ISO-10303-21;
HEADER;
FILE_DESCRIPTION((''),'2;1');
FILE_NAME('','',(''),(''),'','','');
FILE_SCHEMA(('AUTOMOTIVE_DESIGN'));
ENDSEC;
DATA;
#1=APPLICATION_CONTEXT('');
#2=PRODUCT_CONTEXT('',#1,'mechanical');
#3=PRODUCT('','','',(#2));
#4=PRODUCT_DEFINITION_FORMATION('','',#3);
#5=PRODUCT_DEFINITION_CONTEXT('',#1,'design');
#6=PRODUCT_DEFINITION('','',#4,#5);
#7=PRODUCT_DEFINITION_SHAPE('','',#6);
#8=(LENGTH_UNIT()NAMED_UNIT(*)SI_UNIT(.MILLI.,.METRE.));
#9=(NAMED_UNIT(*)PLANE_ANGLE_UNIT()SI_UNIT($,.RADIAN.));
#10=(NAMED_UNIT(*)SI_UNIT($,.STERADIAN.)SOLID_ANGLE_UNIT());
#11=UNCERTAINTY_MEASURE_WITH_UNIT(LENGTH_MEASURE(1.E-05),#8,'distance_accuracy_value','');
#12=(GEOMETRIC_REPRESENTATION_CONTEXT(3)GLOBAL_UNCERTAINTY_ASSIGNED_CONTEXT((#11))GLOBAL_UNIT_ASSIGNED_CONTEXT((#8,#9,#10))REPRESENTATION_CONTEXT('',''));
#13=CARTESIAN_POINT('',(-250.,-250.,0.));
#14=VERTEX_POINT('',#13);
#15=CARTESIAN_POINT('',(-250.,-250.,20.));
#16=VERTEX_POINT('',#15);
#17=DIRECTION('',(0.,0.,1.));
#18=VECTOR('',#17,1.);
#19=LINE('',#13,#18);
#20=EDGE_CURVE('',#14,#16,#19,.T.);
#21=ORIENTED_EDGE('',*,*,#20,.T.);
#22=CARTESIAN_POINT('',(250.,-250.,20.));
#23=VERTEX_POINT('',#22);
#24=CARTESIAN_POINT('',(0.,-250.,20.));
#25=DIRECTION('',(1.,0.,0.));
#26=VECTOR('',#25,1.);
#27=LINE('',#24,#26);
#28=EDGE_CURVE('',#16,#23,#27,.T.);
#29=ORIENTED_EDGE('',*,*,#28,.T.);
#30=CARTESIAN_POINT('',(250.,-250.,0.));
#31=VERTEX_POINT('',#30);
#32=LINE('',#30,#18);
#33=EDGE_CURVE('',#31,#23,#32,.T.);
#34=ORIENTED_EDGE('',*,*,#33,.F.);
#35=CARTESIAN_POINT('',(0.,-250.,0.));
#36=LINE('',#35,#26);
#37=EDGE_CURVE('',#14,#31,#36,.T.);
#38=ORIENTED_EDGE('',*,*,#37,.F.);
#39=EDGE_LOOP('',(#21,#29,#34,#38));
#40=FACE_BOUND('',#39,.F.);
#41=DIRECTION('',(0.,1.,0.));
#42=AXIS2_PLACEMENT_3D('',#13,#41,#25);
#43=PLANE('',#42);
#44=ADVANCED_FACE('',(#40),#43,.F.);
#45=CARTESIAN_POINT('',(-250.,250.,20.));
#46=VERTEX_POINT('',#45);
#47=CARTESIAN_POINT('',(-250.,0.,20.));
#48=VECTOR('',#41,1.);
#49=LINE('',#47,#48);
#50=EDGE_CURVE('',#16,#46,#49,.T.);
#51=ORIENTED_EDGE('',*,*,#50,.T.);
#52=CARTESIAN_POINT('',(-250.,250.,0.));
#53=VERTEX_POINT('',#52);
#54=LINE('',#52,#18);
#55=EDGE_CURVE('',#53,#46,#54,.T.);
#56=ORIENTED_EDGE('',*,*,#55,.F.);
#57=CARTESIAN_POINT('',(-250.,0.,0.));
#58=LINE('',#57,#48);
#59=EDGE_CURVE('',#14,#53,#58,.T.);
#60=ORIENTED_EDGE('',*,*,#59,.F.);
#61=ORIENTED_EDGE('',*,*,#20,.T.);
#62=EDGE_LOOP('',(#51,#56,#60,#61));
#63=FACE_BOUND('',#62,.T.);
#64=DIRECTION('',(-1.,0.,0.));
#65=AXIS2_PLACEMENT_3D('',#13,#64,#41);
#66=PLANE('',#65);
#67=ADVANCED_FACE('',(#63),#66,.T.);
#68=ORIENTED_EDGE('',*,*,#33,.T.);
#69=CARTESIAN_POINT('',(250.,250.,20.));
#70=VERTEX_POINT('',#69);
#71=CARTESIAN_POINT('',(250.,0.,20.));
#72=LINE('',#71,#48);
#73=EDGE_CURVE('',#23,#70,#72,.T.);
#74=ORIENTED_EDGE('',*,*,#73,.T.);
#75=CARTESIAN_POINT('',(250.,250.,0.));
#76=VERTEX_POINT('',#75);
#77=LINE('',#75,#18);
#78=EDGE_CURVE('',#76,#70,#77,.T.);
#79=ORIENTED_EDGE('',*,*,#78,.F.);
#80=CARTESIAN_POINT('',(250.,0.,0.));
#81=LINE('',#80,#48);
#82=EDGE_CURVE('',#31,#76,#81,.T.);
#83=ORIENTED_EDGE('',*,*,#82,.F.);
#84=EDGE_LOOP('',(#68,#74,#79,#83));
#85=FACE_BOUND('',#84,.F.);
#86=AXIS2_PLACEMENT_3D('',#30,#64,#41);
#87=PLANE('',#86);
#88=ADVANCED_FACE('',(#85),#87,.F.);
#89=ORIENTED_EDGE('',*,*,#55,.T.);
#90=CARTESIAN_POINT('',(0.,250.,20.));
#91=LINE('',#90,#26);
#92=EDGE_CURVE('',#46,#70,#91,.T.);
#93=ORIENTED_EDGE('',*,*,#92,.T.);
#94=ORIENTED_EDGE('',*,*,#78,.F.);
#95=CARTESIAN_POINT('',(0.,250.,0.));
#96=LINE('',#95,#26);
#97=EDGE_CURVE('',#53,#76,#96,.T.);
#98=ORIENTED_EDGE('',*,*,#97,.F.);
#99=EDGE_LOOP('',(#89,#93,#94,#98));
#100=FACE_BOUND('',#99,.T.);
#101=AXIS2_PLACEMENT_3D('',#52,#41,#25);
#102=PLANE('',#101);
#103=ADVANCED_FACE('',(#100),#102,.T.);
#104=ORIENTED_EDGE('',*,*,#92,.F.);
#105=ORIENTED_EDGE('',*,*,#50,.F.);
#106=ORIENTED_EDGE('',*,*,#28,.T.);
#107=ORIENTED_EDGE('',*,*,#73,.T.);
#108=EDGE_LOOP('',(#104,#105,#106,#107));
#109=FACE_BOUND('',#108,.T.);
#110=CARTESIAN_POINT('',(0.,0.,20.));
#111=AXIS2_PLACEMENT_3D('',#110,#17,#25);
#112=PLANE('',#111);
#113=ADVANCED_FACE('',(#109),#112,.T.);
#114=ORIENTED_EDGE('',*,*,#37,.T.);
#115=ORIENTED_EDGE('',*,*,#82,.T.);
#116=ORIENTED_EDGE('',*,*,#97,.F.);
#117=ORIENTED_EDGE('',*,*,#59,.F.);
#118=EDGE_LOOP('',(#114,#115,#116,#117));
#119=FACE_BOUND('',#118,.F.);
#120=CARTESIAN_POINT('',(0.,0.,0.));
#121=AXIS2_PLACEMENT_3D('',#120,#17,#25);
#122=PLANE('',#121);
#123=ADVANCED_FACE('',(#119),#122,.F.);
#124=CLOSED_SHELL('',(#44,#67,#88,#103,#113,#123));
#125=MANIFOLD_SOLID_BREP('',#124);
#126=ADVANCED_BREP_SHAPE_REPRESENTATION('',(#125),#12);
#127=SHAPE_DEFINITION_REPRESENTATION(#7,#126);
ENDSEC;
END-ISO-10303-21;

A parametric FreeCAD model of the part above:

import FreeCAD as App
import Part
import Sketcher
from FreeCAD import Vector


def add_polygon(sketch, points):
    """Adds a closed chain of lines whose ends are joined by coincident constraints."""
    first, n = sketch.GeometryCount, len(points)
    for a, b in zip(points, points[1:] + points[:1]):
        sketch.addGeometry(Part.LineSegment(App.Vector(*a, 0), App.Vector(*b, 0)), False)
    for i in range(n):
        sketch.addConstraint(Sketcher.Constraint("Coincident", first + i, 2, first + (i + 1) % n, 1))

doc = App.newDocument("Part")
body = doc.addObject("PartDesign::Body", "Body")

sketch1 = body.newObject("Sketcher::SketchObject", "Sketch")
sketch1.AttachmentSupport = (doc.getObject("XY_Plane"), [""])
sketch1.MapMode = "FlatFace"
add_polygon(sketch1, [(-250, 250), (-250, -250), (250, -250), (250, 250)])
sketch1.addConstraint(Sketcher.Constraint("Vertical", 0))
sketch1.addConstraint(Sketcher.Constraint("Horizontal", 1))
sketch1.addConstraint(Sketcher.Constraint("Vertical", 2))
sketch1.addConstraint(Sketcher.Constraint("Horizontal", 3))
sketch1.addConstraint(Sketcher.Constraint("Symmetric", 0, 2, 2, 2, -1, 1))
sketch1.addConstraint(Sketcher.Constraint("Equal", 3, 0))
sketch1.addConstraint(Sketcher.Constraint("DistanceX", 1, 1, 1, 2, 500.0))
pad1 = body.newObject("PartDesign::Pad", "Pad")
pad1.Profile = sketch1
pad1.Length = 20

doc.recompute()
